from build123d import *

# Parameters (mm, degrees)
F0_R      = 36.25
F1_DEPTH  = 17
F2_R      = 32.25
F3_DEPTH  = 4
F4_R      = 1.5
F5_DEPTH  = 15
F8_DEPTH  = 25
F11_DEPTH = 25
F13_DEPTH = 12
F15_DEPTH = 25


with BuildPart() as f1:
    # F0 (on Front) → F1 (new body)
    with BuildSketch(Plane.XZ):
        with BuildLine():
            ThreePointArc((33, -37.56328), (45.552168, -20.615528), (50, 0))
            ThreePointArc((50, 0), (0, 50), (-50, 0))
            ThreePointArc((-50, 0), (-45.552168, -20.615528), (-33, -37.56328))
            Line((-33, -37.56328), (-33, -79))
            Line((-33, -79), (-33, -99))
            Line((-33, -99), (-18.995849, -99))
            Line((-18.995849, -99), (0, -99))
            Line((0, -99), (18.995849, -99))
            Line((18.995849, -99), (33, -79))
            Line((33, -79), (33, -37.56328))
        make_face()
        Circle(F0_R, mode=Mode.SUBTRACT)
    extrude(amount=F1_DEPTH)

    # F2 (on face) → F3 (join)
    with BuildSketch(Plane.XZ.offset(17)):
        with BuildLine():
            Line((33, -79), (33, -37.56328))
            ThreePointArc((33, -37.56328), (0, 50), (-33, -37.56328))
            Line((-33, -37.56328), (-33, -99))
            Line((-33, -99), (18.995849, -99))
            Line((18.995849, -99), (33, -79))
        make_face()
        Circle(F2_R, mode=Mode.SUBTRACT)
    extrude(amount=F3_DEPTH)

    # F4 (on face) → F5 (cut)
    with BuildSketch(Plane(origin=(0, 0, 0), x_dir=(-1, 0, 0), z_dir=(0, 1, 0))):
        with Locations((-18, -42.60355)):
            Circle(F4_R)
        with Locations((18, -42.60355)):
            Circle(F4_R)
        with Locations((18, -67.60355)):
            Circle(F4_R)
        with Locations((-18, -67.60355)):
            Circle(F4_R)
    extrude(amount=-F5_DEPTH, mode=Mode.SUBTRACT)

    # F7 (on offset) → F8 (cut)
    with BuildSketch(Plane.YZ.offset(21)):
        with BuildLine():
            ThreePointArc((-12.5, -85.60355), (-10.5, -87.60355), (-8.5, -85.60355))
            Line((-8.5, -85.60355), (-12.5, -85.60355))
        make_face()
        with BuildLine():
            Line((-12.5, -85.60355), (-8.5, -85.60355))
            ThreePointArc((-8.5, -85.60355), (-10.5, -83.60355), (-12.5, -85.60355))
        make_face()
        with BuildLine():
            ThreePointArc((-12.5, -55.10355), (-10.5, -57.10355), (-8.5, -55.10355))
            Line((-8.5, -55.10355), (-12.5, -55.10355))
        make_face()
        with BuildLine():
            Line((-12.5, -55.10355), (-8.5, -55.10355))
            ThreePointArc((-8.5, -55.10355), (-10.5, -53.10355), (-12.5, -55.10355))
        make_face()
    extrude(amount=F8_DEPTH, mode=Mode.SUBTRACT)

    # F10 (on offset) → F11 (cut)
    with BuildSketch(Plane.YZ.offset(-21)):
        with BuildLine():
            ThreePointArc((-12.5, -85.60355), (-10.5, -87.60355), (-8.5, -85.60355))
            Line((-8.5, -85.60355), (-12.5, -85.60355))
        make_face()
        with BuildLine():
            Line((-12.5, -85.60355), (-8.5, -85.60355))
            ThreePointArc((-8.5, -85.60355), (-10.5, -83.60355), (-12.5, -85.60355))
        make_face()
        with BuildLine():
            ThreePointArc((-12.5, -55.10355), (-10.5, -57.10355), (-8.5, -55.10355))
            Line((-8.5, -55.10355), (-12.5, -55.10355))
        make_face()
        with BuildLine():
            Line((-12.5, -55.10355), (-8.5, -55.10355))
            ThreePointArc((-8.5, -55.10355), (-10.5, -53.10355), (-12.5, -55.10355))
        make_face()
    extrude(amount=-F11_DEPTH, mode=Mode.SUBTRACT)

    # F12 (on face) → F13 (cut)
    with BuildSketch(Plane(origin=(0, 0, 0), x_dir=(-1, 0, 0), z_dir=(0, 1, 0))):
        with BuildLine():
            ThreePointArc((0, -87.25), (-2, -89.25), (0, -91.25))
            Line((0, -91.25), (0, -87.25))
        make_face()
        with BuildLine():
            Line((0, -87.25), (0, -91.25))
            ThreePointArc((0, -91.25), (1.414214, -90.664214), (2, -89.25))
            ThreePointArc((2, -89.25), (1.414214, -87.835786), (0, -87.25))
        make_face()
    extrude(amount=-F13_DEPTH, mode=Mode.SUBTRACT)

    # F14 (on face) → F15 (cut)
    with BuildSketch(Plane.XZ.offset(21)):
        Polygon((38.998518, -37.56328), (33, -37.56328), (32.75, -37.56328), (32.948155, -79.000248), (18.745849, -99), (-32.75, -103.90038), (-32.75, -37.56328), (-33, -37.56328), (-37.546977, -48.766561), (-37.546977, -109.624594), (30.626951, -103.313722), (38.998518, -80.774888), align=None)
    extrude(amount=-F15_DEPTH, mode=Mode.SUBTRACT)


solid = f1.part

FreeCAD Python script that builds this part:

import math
import FreeCAD as App
import Part
import Sketcher
from FreeCAD import Vector
Q = App.Units.Quantity


def add_polygon(sketch, points):
    """Adds a closed chain of lines whose ends are joined by coincident constraints."""
    first, n = sketch.GeometryCount, len(points)
    for a, b in zip(points, points[1:] + points[:1]):
        sketch.addGeometry(Part.LineSegment(App.Vector(*a, 0), App.Vector(*b, 0)), False)
    for i in range(n):
        sketch.addConstraint(Sketcher.Constraint("Coincident", first + i, 2, first + (i + 1) % n, 1))

doc = App.newDocument("Part")
body = doc.addObject("PartDesign::Body", "Body")

# Sketch on XZ plane
sketch1 = doc.addObject("Sketcher::SketchObject", "Sketch")
body.addObject(sketch1)
sketch1.AttachmentSupport = (doc.XZ_Plane, [""])
sketch1.MapMode = "FlatFace"
sketch1.addGeometry([
    Part.ArcOfCircle(Part.Circle(Vector(0, 0, 0), Vector(0, 0, 1), 50), math.radians(-49), math.radians(0)),  # 0
    Part.ArcOfCircle(Part.Circle(Vector(0, 0, 0), Vector(0, 0, 1), 50), math.radians(0), math.radians(180)),  # 1
    Part.ArcOfCircle(Part.Circle(Vector(0, 0, 0), Vector(0, 0, 1), 50), math.radians(180), math.radians(229)),  # 2
    Part.LineSegment(Vector(-33, -38, 0), Vector(-33, -99, 0)),  # 3
    Part.LineSegment(Vector(-33, -99, 0), Vector(19, -99, 0)),  # 4
    Part.LineSegment(Vector(19, -99, 0), Vector(33, -79, 0)),  # 5
    Part.LineSegment(Vector(33, -79, 0), Vector(33, -38, 0)),  # 6
    Part.Circle(Vector(0, 0, 0), Vector(0, 0, 1), 36),  # 7
], False)
sketch1.addConstraint([
    Sketcher.Constraint("Tangent", 0, 2, 1, 1),
    Sketcher.Constraint("Tangent", 1, 2, 2, 1),
    Sketcher.Constraint("Coincident", 2, 2, 3, 1),
    Sketcher.Constraint("Coincident", 3, 2, 4, 1),
    Sketcher.Constraint("Coincident", 4, 2, 5, 1),
    Sketcher.Constraint("Coincident", 5, 2, 6, 1),
    Sketcher.Constraint("Coincident", 6, 2, 0, 1),
    Sketcher.Constraint("Vertical", 3),
    Sketcher.Constraint("Horizontal", 4),
    Sketcher.Constraint("Vertical", 6),
    Sketcher.Constraint("Coincident", 0, 3, -1, 1),
    Sketcher.Constraint("Coincident", 7, 3, -1, 1),
    Sketcher.Constraint("Equal", 0, 1),
    Sketcher.Constraint("Equal", 1, 2),
    Sketcher.Constraint("PointOnObject", 0, 2, -1),
    Sketcher.Constraint("PointOnObject", 1, 2, -1),
    Sketcher.Constraint("Horizontal", 2, 2, 6, 2),
    Sketcher.Constraint("Radius", 0, 50.0),
    Sketcher.Constraint("Diameter", 7, 72.5),
    Sketcher.Constraint("Angle", 5, Q("55 deg")),
    Sketcher.Constraint("DistanceX", 2, 2, -1, 1, 33.0),
    Sketcher.Constraint("DistanceY", 3, 2, -1, 1, 99.0),
    Sketcher.Constraint("DistanceY", 5, 2, -1, 1, 79.0),
])
pad1 = doc.addObject("PartDesign::Pad", "Pad")
body.addObject(pad1)
pad1.Profile = sketch1
pad1.Length = 17

# Sketch on XZ plane
sketch2 = doc.addObject("Sketcher::SketchObject", "Sketch001")
body.addObject(sketch2)
sketch2.AttachmentSupport = (doc.XZ_Plane, [""])
sketch2.MapMode = "FlatFace"
sketch2.AttachmentOffset = App.Placement(Vector(0, 0, 17), App.Rotation())
sketch2.addGeometry([
    Part.LineSegment(Vector(33, -79, 0), Vector(33, -38, 0)),  # 0
    Part.ArcOfCircle(Part.Circle(Vector(0, 0, 0), Vector(0, 0, 1), 50), math.radians(-49), math.radians(229)),  # 1
    Part.LineSegment(Vector(-33, -38, 0), Vector(-33, -99, 0)),  # 2
    Part.LineSegment(Vector(-33, -99, 0), Vector(19, -99, 0)),  # 3
    Part.LineSegment(Vector(19, -99, 0), Vector(33, -79, 0)),  # 4
    Part.Circle(Vector(0, 0, 0), Vector(0, 0, 1), 32),  # 5
], False)
sketch2.addConstraint([
    Sketcher.Constraint("Coincident", 0, 2, 1, 1),
    Sketcher.Constraint("Coincident", 1, 2, 2, 1),
    Sketcher.Constraint("Coincident", 2, 2, 3, 1),
    Sketcher.Constraint("Coincident", 3, 2, 4, 1),
    Sketcher.Constraint("Coincident", 4, 2, 0, 1),
    Sketcher.Constraint("Vertical", 0),
    Sketcher.Constraint("Vertical", 2),
    Sketcher.Constraint("Horizontal", 3),
    Sketcher.Constraint("Coincident", 1, 3, -1, 1),
    Sketcher.Constraint("Coincident", 5, 3, -1, 1),
    Sketcher.Constraint("Horizontal", 0, 2, 1, 2),
    Sketcher.Constraint("Radius", 1, 50.0),
    Sketcher.Constraint("Diameter", 5, 64.5),
    Sketcher.Constraint("Angle", 4, Q("55 deg")),
    Sketcher.Constraint("DistanceX", -1, 1, 0, 2, 33.0),
    Sketcher.Constraint("DistanceY", 2, 2, -1, 1, 99.0),
    Sketcher.Constraint("DistanceY", 4, 2, -1, 1, 79.0),
])
pad2 = doc.addObject("PartDesign::Pad", "Pad001")
body.addObject(pad2)
pad2.Profile = sketch2
pad2.Length = 4

# Sketch on XZ plane
sketch3 = doc.addObject("Sketcher::SketchObject", "Sketch002")
body.addObject(sketch3)
sketch3.AttachmentSupport = (doc.XZ_Plane, [""])
sketch3.MapMode = "FlatFace"
sketch3.addGeometry([
    Part.Circle(Vector(18, -42.6, 0), Vector(0, 0, 1), 1.5),
    Part.Circle(Vector(-18, -42.6, 0), Vector(0, 0, 1), 1.5),
    Part.Circle(Vector(-18, -67.6, 0), Vector(0, 0, 1), 1.5),
    Part.Circle(Vector(18, -67.6, 0), Vector(0, 0, 1), 1.5),
], False)
sketch3.addConstraint([
    Sketcher.Constraint("Equal", 0, 1),
    Sketcher.Constraint("Equal", 1, 2),
    Sketcher.Constraint("Equal", 2, 3),
    Sketcher.Constraint("Symmetric", 0, 3, 1, 3, -2),
    Sketcher.Constraint("Symmetric", 2, 3, 3, 3, -2),
    Sketcher.Constraint("Vertical", 1, 3, 2, 3),
    Sketcher.Constraint("Diameter", 0, 3.0),
    Sketcher.Constraint("DistanceX", -1, 1, 0, 3, 18.0),
    Sketcher.Constraint("DistanceY", 2, 3, 1, 3, 25.0),
    Sketcher.Constraint("DistanceY", 0, 3, -1, 1, 42.60355),
])
pocket1 = doc.addObject("PartDesign::Pocket", "Pocket")
body.addObject(pocket1)
pocket1.Profile = sketch3
pocket1.Length = 15
pocket1.Reversed = True

# Sketch on YZ plane
sketch4 = doc.addObject("Sketcher::SketchObject", "Sketch003")
body.addObject(sketch4)
sketch4.AttachmentSupport = (doc.YZ_Plane, [""])
sketch4.MapMode = "FlatFace"
sketch4.AttachmentOffset = App.Placement(Vector(0, 0, 21), App.Rotation())
sketch4.addGeometry([
    Part.Circle(Vector(-10.5, -85.6, 0), Vector(0, 0, 1), 2),
    Part.Circle(Vector(-10.5, -55.1, 0), Vector(0, 0, 1), 2),
], False)
sketch4.addConstraint([
    Sketcher.Constraint("Equal", 0, 1),
    Sketcher.Constraint("Vertical", 0, 3, 1, 3),
    Sketcher.Constraint("Diameter", 0, 4.0),
    Sketcher.Constraint("DistanceX", 0, 3, -1, 1, 10.5),
    Sketcher.Constraint("DistanceY", 0, 3, 1, 3, 30.5),
    Sketcher.Constraint("DistanceY", 0, 3, -1, 1, 85.60355),
])
pocket2 = doc.addObject("PartDesign::Pocket", "Pocket001")
body.addObject(pocket2)
pocket2.Profile = sketch4
pocket2.Length = 25
pocket2.Reversed = True

# Sketch on YZ plane
sketch5 = doc.addObject("Sketcher::SketchObject", "Sketch004")
body.addObject(sketch5)
sketch5.AttachmentSupport = (doc.YZ_Plane, [""])
sketch5.MapMode = "FlatFace"
sketch5.AttachmentOffset = App.Placement(Vector(0, 0, -21), App.Rotation())
sketch5.addGeometry([
    Part.Circle(Vector(-10.5, -85.6, 0), Vector(0, 0, 1), 2),
    Part.Circle(Vector(-10.5, -55.1, 0), Vector(0, 0, 1), 2),
], False)
sketch5.addConstraint([
    Sketcher.Constraint("Equal", 0, 1),
    Sketcher.Constraint("Vertical", 0, 3, 1, 3),
    Sketcher.Constraint("Diameter", 0, 4.0),
    Sketcher.Constraint("DistanceX", 0, 3, -1, 1, 10.5),
    Sketcher.Constraint("DistanceY", 0, 3, 1, 3, 30.5),
    Sketcher.Constraint("DistanceY", 0, 3, -1, 1, 85.60355),
])
pocket3 = doc.addObject("PartDesign::Pocket", "Pocket002")
body.addObject(pocket3)
pocket3.Profile = sketch5
pocket3.Length = 25

# Sketch on XZ plane
sketch6 = doc.addObject("Sketcher::SketchObject", "Sketch005")
body.addObject(sketch6)
sketch6.AttachmentSupport = (doc.XZ_Plane, [""])
sketch6.MapMode = "FlatFace"
sketch6.addGeometry([
    Part.ArcOfCircle(Part.Circle(Vector(0, -89.2, 0), Vector(0, 0, 1), 2), math.radians(-90), math.radians(90)),
    Part.ArcOfCircle(Part.Circle(Vector(0, -89.3, 0), Vector(0, 0, 1), 2), math.radians(180), math.radians(270)),
    Part.ArcOfCircle(Part.Circle(Vector(0, -89.2, 0), Vector(0, 0, 1), 2), math.radians(90), math.radians(180)),
], False)
sketch6.addConstraint([
    Sketcher.Constraint("Tangent", 0, 1, 1, 2),
    Sketcher.Constraint("Tangent", 1, 1, 2, 2),
    Sketcher.Constraint("Tangent", 2, 1, 0, 2),
    Sketcher.Constraint("PointOnObject", 0, 3, -2),
    Sketcher.Constraint("PointOnObject", 0, 1, -2),
    Sketcher.Constraint("PointOnObject", 2, 1, -2),
    Sketcher.Constraint("Horizontal", 2, 3, 1, 1),
    Sketcher.Constraint("Radius", 0, 2.0),
    Sketcher.Constraint("DistanceY", 0, 3, -1, 1, 89.25),
])
pocket4 = doc.addObject("PartDesign::Pocket", "Pocket003")
body.addObject(pocket4)
pocket4.Profile = sketch6
pocket4.Length = 12
pocket4.Reversed = True

# Sketch on XZ plane
sketch7 = doc.addObject("Sketcher::SketchObject", "Sketch006")
body.addObject(sketch7)
sketch7.AttachmentSupport = (doc.XZ_Plane, [""])
sketch7.MapMode = "FlatFace"
sketch7.AttachmentOffset = App.Placement(Vector(0, 0, 21), App.Rotation())
add_polygon(sketch7, [(38.998518, -37.56328), (32.75, -37.56328), (32.948155, -79.000248), (18.745849, -99), (-32.75, -103.90038), (-32.75, -37.56328), (-33, -37.56328), (-37.546977, -48.766561), (-37.546977, -109.624594), (30.626951, -103.313722), (38.998518, -80.774888)])  # lines 0-10
sketch7.addConstraint([
    Sketcher.Constraint("Horizontal", 0),
    Sketcher.Constraint("Vertical", 4),
    Sketcher.Constraint("Horizontal", 5),
    Sketcher.Constraint("Vertical", 7),
    Sketcher.Constraint("Vertical", 10),
    Sketcher.Constraint("Symmetric", 0, 2, 4, 2, -2),
    Sketcher.Constraint("DistanceY", 2, 2, -1, 1, 99.0),
    Sketcher.Constraint("DistanceX", 5, 2, -1, 1, 33.0),
    Sketcher.Constraint("DistanceX", 5, 2, 5, 1, 0.25),
    Sketcher.Constraint("DistanceY", 4, 1, 4, 2, 66.3371),
    Sketcher.Constraint("DistanceY", 10, 1, 10, 2, 43.211608),
    Sketcher.Constraint("DistanceX", 2, 2, 8, 2, 11.881102),
    Sketcher.Constraint("Distance", 1, 41.437442),
    Sketcher.Constraint("Distance", 9, 24.043339),
    Sketcher.Constraint("DistanceX", 0, 2, 0, 1, 6.248518),
    Sketcher.Constraint("DistanceY", 7, 2, 7, 1, 60.858033),
    Sketcher.Constraint("DistanceY", 0, 2, -1, 1, 37.56328),
    Sketcher.Constraint("DistanceY", 1, 2, -1, 1, 79.000248),
    Sketcher.Constraint("DistanceX", -1, 1, 2, 2, 18.745849),
    Sketcher.Constraint("DistanceY", 6, 2, -1, 1, 48.766561),
    Sketcher.Constraint("Distance", 6, 12.090844),
])
pocket5 = doc.addObject("PartDesign::Pocket", "Pocket004")
body.addObject(pocket5)
pocket5.Profile = sketch7
pocket5.Length = 25

doc.recompute()
